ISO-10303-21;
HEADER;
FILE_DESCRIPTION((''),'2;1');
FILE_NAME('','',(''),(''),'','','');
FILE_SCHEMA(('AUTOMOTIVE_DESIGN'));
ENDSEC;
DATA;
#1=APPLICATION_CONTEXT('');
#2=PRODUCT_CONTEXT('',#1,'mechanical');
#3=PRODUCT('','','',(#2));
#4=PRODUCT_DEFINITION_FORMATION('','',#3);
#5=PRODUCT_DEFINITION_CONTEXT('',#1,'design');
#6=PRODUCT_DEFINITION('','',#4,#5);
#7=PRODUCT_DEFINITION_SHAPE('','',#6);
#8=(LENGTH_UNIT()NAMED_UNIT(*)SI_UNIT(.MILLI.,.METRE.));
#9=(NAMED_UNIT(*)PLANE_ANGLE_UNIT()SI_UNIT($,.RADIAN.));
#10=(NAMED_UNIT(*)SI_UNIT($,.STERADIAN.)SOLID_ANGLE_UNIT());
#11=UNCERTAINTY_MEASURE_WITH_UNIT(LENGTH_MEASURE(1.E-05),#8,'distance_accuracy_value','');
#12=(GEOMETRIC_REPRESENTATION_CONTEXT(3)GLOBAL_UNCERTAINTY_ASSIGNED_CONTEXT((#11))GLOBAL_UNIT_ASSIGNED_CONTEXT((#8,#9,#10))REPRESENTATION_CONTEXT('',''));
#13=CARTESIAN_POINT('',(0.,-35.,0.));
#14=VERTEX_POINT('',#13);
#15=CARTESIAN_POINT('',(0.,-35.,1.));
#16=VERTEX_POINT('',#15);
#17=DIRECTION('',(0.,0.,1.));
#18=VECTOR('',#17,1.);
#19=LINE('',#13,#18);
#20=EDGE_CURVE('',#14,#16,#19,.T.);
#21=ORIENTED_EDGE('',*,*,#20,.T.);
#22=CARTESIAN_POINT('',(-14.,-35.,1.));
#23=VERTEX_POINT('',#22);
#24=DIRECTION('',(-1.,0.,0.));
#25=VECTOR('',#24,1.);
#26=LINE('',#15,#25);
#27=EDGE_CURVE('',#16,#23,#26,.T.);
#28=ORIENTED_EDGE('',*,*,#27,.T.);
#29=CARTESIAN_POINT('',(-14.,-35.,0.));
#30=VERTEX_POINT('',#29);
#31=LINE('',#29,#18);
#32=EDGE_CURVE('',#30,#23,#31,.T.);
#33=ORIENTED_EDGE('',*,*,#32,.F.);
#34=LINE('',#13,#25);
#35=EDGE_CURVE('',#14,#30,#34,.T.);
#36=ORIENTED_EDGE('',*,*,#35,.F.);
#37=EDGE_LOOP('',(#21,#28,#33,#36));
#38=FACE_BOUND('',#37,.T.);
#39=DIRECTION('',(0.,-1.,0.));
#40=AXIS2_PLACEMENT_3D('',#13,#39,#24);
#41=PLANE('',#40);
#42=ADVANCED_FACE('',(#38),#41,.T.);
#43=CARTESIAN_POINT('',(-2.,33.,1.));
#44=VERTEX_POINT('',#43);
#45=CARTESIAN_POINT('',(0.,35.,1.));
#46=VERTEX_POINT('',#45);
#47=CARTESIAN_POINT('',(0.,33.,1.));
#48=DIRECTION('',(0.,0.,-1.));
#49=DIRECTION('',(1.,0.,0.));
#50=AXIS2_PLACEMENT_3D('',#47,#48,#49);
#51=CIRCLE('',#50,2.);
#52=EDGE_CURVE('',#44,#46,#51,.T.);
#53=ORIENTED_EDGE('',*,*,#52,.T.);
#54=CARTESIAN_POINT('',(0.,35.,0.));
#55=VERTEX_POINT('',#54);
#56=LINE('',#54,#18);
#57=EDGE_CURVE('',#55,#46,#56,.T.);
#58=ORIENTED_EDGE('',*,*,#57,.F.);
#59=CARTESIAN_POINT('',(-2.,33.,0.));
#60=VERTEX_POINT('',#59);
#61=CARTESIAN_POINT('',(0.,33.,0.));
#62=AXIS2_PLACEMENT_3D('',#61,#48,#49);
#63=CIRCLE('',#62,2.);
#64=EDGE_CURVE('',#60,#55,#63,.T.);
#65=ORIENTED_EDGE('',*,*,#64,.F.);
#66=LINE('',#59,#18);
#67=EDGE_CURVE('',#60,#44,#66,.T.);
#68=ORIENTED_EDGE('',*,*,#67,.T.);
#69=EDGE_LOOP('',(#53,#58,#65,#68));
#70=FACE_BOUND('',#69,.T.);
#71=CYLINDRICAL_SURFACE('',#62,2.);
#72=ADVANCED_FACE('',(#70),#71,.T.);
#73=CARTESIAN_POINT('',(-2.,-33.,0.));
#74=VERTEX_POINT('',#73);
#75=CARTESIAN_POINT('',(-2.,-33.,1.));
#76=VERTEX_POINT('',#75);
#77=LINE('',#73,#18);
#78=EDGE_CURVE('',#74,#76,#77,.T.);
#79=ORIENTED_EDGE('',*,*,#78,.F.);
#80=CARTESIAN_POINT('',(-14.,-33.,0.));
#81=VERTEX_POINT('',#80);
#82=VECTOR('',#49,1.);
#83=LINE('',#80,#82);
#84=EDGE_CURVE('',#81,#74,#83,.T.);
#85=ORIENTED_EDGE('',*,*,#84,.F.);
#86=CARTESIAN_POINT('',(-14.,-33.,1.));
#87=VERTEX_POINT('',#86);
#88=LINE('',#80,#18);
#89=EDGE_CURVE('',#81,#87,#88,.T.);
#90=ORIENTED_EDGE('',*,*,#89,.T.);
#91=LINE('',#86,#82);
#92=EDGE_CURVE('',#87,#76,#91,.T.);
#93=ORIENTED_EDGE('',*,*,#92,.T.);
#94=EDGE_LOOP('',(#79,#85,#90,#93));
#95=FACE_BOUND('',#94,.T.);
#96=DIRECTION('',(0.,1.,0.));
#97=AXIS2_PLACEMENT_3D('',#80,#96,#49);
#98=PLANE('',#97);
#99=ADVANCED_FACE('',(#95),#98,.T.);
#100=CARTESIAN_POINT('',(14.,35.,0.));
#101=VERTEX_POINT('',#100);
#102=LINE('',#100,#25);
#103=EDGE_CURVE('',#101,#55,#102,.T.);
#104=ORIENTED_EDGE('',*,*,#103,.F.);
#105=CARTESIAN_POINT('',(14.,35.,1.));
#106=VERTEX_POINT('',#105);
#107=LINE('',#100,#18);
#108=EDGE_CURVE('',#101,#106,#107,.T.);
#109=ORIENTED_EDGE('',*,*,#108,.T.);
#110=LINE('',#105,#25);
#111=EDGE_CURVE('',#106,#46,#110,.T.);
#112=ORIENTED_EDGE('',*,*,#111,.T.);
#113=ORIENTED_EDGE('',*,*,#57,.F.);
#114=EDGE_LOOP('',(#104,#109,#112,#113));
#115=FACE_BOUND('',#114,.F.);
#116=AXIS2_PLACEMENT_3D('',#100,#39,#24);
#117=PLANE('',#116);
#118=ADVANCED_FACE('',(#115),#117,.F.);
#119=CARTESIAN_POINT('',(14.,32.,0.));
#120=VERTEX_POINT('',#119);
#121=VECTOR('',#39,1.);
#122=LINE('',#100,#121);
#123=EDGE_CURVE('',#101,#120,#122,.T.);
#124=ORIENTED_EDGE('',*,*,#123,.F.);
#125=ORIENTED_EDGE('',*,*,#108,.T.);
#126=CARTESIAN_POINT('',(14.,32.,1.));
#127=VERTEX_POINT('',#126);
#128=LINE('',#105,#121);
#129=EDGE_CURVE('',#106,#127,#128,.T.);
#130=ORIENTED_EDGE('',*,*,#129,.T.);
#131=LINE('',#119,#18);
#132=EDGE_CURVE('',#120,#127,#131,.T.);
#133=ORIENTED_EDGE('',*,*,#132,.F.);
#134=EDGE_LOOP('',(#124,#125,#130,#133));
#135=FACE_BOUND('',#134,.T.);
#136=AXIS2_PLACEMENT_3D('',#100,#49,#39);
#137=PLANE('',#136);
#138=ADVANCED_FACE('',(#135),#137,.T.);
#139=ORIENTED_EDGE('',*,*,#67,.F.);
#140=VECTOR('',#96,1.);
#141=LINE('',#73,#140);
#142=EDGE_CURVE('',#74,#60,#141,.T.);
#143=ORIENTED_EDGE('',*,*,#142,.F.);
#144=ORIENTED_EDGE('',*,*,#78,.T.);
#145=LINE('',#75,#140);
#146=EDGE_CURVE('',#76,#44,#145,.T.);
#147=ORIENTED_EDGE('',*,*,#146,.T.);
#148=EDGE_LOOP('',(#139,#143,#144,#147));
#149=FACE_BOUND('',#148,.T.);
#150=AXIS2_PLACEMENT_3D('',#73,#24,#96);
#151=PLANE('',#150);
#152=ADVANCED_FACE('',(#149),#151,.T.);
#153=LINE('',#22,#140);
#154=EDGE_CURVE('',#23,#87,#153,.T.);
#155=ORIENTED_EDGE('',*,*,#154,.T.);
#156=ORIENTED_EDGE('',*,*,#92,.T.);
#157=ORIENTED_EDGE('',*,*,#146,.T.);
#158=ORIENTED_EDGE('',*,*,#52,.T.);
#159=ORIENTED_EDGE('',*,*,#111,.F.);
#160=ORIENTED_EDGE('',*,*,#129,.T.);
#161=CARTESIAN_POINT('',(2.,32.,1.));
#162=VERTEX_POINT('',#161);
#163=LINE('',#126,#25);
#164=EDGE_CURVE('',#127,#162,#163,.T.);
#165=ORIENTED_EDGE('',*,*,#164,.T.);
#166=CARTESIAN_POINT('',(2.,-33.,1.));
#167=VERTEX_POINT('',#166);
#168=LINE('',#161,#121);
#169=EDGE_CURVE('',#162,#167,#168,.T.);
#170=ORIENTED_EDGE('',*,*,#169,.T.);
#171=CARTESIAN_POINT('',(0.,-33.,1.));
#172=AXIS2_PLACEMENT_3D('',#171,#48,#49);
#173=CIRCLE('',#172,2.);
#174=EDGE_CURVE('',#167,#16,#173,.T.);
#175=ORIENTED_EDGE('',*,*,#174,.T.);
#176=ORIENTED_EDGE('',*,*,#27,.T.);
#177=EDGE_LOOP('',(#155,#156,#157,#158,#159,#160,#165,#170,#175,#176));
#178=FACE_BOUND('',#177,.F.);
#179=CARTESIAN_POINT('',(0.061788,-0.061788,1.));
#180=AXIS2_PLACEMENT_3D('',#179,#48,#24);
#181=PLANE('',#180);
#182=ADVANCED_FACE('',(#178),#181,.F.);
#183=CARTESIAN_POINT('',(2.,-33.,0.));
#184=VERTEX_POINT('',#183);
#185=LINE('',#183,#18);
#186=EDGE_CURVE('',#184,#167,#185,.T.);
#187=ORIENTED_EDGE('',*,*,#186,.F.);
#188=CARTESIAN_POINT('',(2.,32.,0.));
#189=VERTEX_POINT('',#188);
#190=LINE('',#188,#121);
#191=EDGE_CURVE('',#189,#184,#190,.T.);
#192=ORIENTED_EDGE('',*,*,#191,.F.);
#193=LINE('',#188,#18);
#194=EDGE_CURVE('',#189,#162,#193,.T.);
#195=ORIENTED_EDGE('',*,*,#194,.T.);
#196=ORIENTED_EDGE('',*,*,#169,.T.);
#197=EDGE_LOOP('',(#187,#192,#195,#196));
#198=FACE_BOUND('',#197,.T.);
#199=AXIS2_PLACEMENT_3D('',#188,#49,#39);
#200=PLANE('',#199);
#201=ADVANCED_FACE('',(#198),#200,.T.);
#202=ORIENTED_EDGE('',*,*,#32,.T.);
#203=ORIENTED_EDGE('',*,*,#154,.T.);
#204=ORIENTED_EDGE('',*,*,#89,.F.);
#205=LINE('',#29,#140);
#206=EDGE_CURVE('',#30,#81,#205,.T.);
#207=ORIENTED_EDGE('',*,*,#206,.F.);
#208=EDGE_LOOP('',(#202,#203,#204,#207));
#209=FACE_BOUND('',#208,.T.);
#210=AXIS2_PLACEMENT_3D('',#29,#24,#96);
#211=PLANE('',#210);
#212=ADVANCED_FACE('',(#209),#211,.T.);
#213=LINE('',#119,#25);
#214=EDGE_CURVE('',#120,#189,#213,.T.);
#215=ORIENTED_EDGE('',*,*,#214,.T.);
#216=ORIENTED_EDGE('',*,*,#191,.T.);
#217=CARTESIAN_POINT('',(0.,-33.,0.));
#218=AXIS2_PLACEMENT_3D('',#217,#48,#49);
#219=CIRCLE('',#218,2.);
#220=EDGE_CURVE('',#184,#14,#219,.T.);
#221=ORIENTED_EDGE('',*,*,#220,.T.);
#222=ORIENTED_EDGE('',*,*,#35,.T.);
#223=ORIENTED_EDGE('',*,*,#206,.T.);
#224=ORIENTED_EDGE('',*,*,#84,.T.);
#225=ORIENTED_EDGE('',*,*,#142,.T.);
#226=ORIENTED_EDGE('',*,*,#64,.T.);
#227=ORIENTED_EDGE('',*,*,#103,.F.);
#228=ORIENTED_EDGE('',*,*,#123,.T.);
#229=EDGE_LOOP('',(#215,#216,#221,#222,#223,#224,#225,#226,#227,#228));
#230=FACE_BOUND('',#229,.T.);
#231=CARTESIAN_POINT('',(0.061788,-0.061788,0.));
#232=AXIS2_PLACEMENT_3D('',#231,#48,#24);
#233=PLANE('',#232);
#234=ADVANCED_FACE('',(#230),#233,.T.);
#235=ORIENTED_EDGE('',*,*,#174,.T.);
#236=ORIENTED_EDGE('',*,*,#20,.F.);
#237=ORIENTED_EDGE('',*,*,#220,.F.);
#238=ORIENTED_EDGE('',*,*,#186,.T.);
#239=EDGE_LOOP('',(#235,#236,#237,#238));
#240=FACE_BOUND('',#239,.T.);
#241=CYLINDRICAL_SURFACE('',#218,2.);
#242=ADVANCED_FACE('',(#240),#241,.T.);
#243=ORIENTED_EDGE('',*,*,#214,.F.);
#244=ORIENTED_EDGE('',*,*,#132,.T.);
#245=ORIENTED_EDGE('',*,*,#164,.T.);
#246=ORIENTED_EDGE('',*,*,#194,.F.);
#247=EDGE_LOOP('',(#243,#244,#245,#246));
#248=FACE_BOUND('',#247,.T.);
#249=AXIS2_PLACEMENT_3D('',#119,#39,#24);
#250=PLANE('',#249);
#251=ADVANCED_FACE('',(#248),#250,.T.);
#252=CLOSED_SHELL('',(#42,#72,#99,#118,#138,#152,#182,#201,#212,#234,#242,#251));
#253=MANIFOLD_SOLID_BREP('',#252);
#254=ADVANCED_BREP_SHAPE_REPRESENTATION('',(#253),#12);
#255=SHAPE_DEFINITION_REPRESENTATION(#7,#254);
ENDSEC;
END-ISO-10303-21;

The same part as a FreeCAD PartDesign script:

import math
import FreeCAD as App
import Part
import Sketcher
from FreeCAD import Vector

doc = App.newDocument("Part")
body = doc.addObject("PartDesign::Body", "Body")

# Sketch on XY plane
sketch1 = body.newObject("Sketcher::SketchObject", "Sketch")
sketch1.AttachmentSupport = (doc.getObject("XY_Plane"), [""])
sketch1.MapMode = "FlatFace"
sketch1.addGeometry(Part.LineSegment(Vector(14, 32, 0), Vector(14, 35, 0)), False)
sketch1.addGeometry(Part.LineSegment(Vector(14, 35, 0), Vector(0, 35, 0)), False)
sketch1.addGeometry(Part.ArcOfCircle(Part.Circle(Vector(0, 33, 0), Vector(0, 0, 1), 2), math.radians(90), math.radians(180)), False)
sketch1.addGeometry(Part.LineSegment(Vector(-2, 33, 0), Vector(-2, -33, 0)), False)
sketch1.addGeometry(Part.LineSegment(Vector(-2, -33, 0), Vector(-14, -33, 0)), False)
sketch1.addGeometry(Part.LineSegment(Vector(-14, -33, 0), Vector(-14, -35, 0)), False)
sketch1.addGeometry(Part.LineSegment(Vector(-14, -35, 0), Vector(0, -35, 0)), False)
sketch1.addGeometry(Part.ArcOfCircle(Part.Circle(Vector(0, -33, 0), Vector(0, 0, 1), 2), math.radians(-90), math.radians(0)), False)
sketch1.addGeometry(Part.LineSegment(Vector(2, -33, 0), Vector(2, 32, 0)), False)
sketch1.addGeometry(Part.LineSegment(Vector(2, 32, 0), Vector(14, 32, 0)), False)
sketch1.addConstraint(Sketcher.Constraint("Coincident", 0, 2, 1, 1))
sketch1.addConstraint(Sketcher.Constraint("Tangent", 1, 2, 2, 1))
sketch1.addConstraint(Sketcher.Constraint("Tangent", 2, 2, 3, 1))
sketch1.addConstraint(Sketcher.Constraint("Coincident", 3, 2, 4, 1))
sketch1.addConstraint(Sketcher.Constraint("Coincident", 4, 2, 5, 1))
sketch1.addConstraint(Sketcher.Constraint("Coincident", 5, 2, 6, 1))
sketch1.addConstraint(Sketcher.Constraint("Tangent", 6, 2, 7, 1))
sketch1.addConstraint(Sketcher.Constraint("Tangent", 7, 2, 8, 1))
sketch1.addConstraint(Sketcher.Constraint("Coincident", 8, 2, 9, 1))
sketch1.addConstraint(Sketcher.Constraint("Coincident", 9, 2, 0, 1))
sketch1.addConstraint(Sketcher.Constraint("Vertical", 0))
sketch1.addConstraint(Sketcher.Constraint("Horizontal", 1))
sketch1.addConstraint(Sketcher.Constraint("Vertical", 3))
sketch1.addConstraint(Sketcher.Constraint("Horizontal", 4))
sketch1.addConstraint(Sketcher.Constraint("Vertical", 5))
sketch1.addConstraint(Sketcher.Constraint("Horizontal", 6))
sketch1.addConstraint(Sketcher.Constraint("Vertical", 8))
sketch1.addConstraint(Sketcher.Constraint("Horizontal", 9))
sketch1.addConstraint(Sketcher.Constraint("Equal", 2, 7))
sketch1.addConstraint(Sketcher.Constraint("Symmetric", 2, 3, 7, 3, -1, 1))
sketch1.addConstraint(Sketcher.Constraint("PointOnObject", 2, 3, -2))
sketch1.addConstraint(Sketcher.Constraint("Horizontal", 7, 3, 3, 2))
sketch1.addConstraint(Sketcher.Constraint("Equal", 1, 6))
sketch1.addConstraint(Sketcher.Constraint("Radius", 2, 2.0))
sketch1.addConstraint(Sketcher.Constraint("DistanceX", 1, 2, 1, 1, 14.0))
sketch1.addConstraint(Sketcher.Constraint("DistanceY", 0, 1, 0, 2, 3.0))
sketch1.addConstraint(Sketcher.Constraint("DistanceY", 3, 2, 3, 1, 66.0))
pad1 = body.newObject("PartDesign::Pad", "Pad")
pad1.Profile = sketch1
pad1.Length = 1

doc.recompute()
